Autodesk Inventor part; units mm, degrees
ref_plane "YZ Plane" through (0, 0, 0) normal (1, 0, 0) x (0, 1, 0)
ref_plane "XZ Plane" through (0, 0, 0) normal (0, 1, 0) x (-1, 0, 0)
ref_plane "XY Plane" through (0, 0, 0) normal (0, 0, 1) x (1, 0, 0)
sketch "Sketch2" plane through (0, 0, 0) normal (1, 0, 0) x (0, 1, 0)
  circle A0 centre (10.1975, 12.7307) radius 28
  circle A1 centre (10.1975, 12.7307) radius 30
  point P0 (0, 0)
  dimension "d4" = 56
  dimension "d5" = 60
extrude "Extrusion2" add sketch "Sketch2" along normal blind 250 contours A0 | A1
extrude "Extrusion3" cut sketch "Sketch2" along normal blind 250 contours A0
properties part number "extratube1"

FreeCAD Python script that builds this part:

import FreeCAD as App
import Part
import Sketcher

V = App.Vector
Q = App.Units.Quantity

doc = App.newDocument("Part")
params = doc.addObject("Spreadsheet::Sheet", "Params")
for row, (alias, value) in enumerate([
    ("sketch1_diameter", "60 mm"),
    ("pad1_length", "250 mm"),
    ("sketch2_diameter", "56 mm"),
    ("pocket1_length", "250 mm"),
], start=1):
    params.set(f"A{row}", alias)
    params.set(f"B{row}", "=" + value)
    params.setAlias(f"B{row}", alias)

body = doc.addObject("PartDesign::Body", "Body")

# Sketch on YZ plane
sketch1 = body.newObject("Sketcher::SketchObject", "Sketch")
sketch1.AttachmentSupport = (doc.getObject("YZ_Plane"), [""])
sketch1.MapMode = "FlatFace"
sketch1.addGeometry(Part.Circle(V(10.1975, 12.7307, 0), V(0, 0, 1), 30), False)
sketch1.addConstraint(Sketcher.Constraint("Diameter", 0, Q("60 mm")))
sketch1.addConstraint(Sketcher.Constraint("DistanceX", -1, 1, 0, 3, Q("10.1975 mm")))
sketch1.addConstraint(Sketcher.Constraint("DistanceY", -1, 1, 0, 3, Q("12.7307 mm")))
sketch1.setExpression("Constraints[0]", "Params.sketch1_diameter")
pad1 = body.newObject("PartDesign::Pad", "Pad")
pad1.Profile = sketch1
pad1.setExpression("Length", "Params.pad1_length")

# Sketch on YZ plane
sketch2 = body.newObject("Sketcher::SketchObject", "Sketch001")
sketch2.AttachmentSupport = (doc.getObject("YZ_Plane"), [""])
sketch2.MapMode = "FlatFace"
sketch2.addGeometry(Part.Circle(V(10.1975, 12.7307, 0), V(0, 0, 1), 28), False)
sketch2.addConstraint(Sketcher.Constraint("Diameter", 0, Q("56 mm")))
sketch2.addConstraint(Sketcher.Constraint("DistanceX", -1, 1, 0, 3, Q("10.1975 mm")))
sketch2.addConstraint(Sketcher.Constraint("DistanceY", -1, 1, 0, 3, Q("12.7307 mm")))
sketch2.setExpression("Constraints[0]", "Params.sketch2_diameter")
pocket1 = body.newObject("PartDesign::Pocket", "Pocket")
pocket1.Profile = sketch2
pocket1.setExpression("Length", "Params.pocket1_length")
pocket1.Reversed = True

doc.recompute()
